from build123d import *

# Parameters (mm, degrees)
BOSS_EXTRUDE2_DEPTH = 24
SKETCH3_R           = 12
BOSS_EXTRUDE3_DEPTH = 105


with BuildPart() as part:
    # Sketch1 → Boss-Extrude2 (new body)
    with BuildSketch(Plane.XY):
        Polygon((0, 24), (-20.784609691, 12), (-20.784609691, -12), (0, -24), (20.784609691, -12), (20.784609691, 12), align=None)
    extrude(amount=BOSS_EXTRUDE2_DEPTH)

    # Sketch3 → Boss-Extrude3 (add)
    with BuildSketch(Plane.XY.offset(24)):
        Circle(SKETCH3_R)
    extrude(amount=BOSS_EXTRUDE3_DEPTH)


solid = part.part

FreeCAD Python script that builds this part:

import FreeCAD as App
import Part
import Sketcher
from FreeCAD import Vector
Q = App.Units.Quantity


def add_polygon(sketch, points):
    """Adds a closed chain of lines whose ends are joined by coincident constraints."""
    first, n = sketch.GeometryCount, len(points)
    for a, b in zip(points, points[1:] + points[:1]):
        sketch.addGeometry(Part.LineSegment(App.Vector(*a, 0), App.Vector(*b, 0)), False)
    for i in range(n):
        sketch.addConstraint(Sketcher.Constraint("Coincident", first + i, 2, first + (i + 1) % n, 1))

doc = App.newDocument("Part")
body = doc.addObject("PartDesign::Body", "Body")

# Sketch on XY plane
sketch1 = doc.addObject("Sketcher::SketchObject", "Sketch")
body.addObject(sketch1)
sketch1.AttachmentSupport = (doc.XY_Plane, [""])
sketch1.MapMode = "FlatFace"
add_polygon(sketch1, [(0, 24), (-21, 12), (-21, -12), (0, -24), (21, -12), (21, 12)])  # lines 0-5
sketch1.addConstraint([
    Sketcher.Constraint("Vertical", 1),
    Sketcher.Constraint("Vertical", 4),
    Sketcher.Constraint("Symmetric", 0, 2, 3, 2, -1, 1),
    Sketcher.Constraint("Symmetric", 2, 2, 5, 2, -1, 1),
    Sketcher.Constraint("PointOnObject", 2, 2, -2),
    Sketcher.Constraint("Parallel", 2, 5),
    Sketcher.Constraint("Horizontal", 1, 2, 3, 2),
    Sketcher.Constraint("DistanceY", 1, 2, 1, 1, Q("24 mm")),
    Sketcher.Constraint("Angle", 0, Q("-150 deg")),
    Sketcher.Constraint("Distance", 0, Q("24 mm")),
])
pad1 = doc.addObject("PartDesign::Pad", "Pad")
body.addObject(pad1)
pad1.Profile = sketch1
pad1.Length = 24

# Sketch on XY plane
sketch2 = doc.addObject("Sketcher::SketchObject", "Sketch001")
body.addObject(sketch2)
sketch2.AttachmentSupport = (doc.XY_Plane, [""])
sketch2.MapMode = "FlatFace"
sketch2.AttachmentOffset = App.Placement(Vector(0, 0, 24), App.Rotation())
sketch2.addGeometry(Part.Circle(Vector(0, 0, 0), Vector(0, 0, 1), 12), False)
sketch2.addConstraint([
    Sketcher.Constraint("Coincident", 0, 3, -1, 1),
    Sketcher.Constraint("Diameter", 0, Q("24 mm")),
])
pad2 = doc.addObject("PartDesign::Pad", "Pad001")
body.addObject(pad2)
pad2.Profile = sketch2
pad2.Length = 105

doc.recompute()
